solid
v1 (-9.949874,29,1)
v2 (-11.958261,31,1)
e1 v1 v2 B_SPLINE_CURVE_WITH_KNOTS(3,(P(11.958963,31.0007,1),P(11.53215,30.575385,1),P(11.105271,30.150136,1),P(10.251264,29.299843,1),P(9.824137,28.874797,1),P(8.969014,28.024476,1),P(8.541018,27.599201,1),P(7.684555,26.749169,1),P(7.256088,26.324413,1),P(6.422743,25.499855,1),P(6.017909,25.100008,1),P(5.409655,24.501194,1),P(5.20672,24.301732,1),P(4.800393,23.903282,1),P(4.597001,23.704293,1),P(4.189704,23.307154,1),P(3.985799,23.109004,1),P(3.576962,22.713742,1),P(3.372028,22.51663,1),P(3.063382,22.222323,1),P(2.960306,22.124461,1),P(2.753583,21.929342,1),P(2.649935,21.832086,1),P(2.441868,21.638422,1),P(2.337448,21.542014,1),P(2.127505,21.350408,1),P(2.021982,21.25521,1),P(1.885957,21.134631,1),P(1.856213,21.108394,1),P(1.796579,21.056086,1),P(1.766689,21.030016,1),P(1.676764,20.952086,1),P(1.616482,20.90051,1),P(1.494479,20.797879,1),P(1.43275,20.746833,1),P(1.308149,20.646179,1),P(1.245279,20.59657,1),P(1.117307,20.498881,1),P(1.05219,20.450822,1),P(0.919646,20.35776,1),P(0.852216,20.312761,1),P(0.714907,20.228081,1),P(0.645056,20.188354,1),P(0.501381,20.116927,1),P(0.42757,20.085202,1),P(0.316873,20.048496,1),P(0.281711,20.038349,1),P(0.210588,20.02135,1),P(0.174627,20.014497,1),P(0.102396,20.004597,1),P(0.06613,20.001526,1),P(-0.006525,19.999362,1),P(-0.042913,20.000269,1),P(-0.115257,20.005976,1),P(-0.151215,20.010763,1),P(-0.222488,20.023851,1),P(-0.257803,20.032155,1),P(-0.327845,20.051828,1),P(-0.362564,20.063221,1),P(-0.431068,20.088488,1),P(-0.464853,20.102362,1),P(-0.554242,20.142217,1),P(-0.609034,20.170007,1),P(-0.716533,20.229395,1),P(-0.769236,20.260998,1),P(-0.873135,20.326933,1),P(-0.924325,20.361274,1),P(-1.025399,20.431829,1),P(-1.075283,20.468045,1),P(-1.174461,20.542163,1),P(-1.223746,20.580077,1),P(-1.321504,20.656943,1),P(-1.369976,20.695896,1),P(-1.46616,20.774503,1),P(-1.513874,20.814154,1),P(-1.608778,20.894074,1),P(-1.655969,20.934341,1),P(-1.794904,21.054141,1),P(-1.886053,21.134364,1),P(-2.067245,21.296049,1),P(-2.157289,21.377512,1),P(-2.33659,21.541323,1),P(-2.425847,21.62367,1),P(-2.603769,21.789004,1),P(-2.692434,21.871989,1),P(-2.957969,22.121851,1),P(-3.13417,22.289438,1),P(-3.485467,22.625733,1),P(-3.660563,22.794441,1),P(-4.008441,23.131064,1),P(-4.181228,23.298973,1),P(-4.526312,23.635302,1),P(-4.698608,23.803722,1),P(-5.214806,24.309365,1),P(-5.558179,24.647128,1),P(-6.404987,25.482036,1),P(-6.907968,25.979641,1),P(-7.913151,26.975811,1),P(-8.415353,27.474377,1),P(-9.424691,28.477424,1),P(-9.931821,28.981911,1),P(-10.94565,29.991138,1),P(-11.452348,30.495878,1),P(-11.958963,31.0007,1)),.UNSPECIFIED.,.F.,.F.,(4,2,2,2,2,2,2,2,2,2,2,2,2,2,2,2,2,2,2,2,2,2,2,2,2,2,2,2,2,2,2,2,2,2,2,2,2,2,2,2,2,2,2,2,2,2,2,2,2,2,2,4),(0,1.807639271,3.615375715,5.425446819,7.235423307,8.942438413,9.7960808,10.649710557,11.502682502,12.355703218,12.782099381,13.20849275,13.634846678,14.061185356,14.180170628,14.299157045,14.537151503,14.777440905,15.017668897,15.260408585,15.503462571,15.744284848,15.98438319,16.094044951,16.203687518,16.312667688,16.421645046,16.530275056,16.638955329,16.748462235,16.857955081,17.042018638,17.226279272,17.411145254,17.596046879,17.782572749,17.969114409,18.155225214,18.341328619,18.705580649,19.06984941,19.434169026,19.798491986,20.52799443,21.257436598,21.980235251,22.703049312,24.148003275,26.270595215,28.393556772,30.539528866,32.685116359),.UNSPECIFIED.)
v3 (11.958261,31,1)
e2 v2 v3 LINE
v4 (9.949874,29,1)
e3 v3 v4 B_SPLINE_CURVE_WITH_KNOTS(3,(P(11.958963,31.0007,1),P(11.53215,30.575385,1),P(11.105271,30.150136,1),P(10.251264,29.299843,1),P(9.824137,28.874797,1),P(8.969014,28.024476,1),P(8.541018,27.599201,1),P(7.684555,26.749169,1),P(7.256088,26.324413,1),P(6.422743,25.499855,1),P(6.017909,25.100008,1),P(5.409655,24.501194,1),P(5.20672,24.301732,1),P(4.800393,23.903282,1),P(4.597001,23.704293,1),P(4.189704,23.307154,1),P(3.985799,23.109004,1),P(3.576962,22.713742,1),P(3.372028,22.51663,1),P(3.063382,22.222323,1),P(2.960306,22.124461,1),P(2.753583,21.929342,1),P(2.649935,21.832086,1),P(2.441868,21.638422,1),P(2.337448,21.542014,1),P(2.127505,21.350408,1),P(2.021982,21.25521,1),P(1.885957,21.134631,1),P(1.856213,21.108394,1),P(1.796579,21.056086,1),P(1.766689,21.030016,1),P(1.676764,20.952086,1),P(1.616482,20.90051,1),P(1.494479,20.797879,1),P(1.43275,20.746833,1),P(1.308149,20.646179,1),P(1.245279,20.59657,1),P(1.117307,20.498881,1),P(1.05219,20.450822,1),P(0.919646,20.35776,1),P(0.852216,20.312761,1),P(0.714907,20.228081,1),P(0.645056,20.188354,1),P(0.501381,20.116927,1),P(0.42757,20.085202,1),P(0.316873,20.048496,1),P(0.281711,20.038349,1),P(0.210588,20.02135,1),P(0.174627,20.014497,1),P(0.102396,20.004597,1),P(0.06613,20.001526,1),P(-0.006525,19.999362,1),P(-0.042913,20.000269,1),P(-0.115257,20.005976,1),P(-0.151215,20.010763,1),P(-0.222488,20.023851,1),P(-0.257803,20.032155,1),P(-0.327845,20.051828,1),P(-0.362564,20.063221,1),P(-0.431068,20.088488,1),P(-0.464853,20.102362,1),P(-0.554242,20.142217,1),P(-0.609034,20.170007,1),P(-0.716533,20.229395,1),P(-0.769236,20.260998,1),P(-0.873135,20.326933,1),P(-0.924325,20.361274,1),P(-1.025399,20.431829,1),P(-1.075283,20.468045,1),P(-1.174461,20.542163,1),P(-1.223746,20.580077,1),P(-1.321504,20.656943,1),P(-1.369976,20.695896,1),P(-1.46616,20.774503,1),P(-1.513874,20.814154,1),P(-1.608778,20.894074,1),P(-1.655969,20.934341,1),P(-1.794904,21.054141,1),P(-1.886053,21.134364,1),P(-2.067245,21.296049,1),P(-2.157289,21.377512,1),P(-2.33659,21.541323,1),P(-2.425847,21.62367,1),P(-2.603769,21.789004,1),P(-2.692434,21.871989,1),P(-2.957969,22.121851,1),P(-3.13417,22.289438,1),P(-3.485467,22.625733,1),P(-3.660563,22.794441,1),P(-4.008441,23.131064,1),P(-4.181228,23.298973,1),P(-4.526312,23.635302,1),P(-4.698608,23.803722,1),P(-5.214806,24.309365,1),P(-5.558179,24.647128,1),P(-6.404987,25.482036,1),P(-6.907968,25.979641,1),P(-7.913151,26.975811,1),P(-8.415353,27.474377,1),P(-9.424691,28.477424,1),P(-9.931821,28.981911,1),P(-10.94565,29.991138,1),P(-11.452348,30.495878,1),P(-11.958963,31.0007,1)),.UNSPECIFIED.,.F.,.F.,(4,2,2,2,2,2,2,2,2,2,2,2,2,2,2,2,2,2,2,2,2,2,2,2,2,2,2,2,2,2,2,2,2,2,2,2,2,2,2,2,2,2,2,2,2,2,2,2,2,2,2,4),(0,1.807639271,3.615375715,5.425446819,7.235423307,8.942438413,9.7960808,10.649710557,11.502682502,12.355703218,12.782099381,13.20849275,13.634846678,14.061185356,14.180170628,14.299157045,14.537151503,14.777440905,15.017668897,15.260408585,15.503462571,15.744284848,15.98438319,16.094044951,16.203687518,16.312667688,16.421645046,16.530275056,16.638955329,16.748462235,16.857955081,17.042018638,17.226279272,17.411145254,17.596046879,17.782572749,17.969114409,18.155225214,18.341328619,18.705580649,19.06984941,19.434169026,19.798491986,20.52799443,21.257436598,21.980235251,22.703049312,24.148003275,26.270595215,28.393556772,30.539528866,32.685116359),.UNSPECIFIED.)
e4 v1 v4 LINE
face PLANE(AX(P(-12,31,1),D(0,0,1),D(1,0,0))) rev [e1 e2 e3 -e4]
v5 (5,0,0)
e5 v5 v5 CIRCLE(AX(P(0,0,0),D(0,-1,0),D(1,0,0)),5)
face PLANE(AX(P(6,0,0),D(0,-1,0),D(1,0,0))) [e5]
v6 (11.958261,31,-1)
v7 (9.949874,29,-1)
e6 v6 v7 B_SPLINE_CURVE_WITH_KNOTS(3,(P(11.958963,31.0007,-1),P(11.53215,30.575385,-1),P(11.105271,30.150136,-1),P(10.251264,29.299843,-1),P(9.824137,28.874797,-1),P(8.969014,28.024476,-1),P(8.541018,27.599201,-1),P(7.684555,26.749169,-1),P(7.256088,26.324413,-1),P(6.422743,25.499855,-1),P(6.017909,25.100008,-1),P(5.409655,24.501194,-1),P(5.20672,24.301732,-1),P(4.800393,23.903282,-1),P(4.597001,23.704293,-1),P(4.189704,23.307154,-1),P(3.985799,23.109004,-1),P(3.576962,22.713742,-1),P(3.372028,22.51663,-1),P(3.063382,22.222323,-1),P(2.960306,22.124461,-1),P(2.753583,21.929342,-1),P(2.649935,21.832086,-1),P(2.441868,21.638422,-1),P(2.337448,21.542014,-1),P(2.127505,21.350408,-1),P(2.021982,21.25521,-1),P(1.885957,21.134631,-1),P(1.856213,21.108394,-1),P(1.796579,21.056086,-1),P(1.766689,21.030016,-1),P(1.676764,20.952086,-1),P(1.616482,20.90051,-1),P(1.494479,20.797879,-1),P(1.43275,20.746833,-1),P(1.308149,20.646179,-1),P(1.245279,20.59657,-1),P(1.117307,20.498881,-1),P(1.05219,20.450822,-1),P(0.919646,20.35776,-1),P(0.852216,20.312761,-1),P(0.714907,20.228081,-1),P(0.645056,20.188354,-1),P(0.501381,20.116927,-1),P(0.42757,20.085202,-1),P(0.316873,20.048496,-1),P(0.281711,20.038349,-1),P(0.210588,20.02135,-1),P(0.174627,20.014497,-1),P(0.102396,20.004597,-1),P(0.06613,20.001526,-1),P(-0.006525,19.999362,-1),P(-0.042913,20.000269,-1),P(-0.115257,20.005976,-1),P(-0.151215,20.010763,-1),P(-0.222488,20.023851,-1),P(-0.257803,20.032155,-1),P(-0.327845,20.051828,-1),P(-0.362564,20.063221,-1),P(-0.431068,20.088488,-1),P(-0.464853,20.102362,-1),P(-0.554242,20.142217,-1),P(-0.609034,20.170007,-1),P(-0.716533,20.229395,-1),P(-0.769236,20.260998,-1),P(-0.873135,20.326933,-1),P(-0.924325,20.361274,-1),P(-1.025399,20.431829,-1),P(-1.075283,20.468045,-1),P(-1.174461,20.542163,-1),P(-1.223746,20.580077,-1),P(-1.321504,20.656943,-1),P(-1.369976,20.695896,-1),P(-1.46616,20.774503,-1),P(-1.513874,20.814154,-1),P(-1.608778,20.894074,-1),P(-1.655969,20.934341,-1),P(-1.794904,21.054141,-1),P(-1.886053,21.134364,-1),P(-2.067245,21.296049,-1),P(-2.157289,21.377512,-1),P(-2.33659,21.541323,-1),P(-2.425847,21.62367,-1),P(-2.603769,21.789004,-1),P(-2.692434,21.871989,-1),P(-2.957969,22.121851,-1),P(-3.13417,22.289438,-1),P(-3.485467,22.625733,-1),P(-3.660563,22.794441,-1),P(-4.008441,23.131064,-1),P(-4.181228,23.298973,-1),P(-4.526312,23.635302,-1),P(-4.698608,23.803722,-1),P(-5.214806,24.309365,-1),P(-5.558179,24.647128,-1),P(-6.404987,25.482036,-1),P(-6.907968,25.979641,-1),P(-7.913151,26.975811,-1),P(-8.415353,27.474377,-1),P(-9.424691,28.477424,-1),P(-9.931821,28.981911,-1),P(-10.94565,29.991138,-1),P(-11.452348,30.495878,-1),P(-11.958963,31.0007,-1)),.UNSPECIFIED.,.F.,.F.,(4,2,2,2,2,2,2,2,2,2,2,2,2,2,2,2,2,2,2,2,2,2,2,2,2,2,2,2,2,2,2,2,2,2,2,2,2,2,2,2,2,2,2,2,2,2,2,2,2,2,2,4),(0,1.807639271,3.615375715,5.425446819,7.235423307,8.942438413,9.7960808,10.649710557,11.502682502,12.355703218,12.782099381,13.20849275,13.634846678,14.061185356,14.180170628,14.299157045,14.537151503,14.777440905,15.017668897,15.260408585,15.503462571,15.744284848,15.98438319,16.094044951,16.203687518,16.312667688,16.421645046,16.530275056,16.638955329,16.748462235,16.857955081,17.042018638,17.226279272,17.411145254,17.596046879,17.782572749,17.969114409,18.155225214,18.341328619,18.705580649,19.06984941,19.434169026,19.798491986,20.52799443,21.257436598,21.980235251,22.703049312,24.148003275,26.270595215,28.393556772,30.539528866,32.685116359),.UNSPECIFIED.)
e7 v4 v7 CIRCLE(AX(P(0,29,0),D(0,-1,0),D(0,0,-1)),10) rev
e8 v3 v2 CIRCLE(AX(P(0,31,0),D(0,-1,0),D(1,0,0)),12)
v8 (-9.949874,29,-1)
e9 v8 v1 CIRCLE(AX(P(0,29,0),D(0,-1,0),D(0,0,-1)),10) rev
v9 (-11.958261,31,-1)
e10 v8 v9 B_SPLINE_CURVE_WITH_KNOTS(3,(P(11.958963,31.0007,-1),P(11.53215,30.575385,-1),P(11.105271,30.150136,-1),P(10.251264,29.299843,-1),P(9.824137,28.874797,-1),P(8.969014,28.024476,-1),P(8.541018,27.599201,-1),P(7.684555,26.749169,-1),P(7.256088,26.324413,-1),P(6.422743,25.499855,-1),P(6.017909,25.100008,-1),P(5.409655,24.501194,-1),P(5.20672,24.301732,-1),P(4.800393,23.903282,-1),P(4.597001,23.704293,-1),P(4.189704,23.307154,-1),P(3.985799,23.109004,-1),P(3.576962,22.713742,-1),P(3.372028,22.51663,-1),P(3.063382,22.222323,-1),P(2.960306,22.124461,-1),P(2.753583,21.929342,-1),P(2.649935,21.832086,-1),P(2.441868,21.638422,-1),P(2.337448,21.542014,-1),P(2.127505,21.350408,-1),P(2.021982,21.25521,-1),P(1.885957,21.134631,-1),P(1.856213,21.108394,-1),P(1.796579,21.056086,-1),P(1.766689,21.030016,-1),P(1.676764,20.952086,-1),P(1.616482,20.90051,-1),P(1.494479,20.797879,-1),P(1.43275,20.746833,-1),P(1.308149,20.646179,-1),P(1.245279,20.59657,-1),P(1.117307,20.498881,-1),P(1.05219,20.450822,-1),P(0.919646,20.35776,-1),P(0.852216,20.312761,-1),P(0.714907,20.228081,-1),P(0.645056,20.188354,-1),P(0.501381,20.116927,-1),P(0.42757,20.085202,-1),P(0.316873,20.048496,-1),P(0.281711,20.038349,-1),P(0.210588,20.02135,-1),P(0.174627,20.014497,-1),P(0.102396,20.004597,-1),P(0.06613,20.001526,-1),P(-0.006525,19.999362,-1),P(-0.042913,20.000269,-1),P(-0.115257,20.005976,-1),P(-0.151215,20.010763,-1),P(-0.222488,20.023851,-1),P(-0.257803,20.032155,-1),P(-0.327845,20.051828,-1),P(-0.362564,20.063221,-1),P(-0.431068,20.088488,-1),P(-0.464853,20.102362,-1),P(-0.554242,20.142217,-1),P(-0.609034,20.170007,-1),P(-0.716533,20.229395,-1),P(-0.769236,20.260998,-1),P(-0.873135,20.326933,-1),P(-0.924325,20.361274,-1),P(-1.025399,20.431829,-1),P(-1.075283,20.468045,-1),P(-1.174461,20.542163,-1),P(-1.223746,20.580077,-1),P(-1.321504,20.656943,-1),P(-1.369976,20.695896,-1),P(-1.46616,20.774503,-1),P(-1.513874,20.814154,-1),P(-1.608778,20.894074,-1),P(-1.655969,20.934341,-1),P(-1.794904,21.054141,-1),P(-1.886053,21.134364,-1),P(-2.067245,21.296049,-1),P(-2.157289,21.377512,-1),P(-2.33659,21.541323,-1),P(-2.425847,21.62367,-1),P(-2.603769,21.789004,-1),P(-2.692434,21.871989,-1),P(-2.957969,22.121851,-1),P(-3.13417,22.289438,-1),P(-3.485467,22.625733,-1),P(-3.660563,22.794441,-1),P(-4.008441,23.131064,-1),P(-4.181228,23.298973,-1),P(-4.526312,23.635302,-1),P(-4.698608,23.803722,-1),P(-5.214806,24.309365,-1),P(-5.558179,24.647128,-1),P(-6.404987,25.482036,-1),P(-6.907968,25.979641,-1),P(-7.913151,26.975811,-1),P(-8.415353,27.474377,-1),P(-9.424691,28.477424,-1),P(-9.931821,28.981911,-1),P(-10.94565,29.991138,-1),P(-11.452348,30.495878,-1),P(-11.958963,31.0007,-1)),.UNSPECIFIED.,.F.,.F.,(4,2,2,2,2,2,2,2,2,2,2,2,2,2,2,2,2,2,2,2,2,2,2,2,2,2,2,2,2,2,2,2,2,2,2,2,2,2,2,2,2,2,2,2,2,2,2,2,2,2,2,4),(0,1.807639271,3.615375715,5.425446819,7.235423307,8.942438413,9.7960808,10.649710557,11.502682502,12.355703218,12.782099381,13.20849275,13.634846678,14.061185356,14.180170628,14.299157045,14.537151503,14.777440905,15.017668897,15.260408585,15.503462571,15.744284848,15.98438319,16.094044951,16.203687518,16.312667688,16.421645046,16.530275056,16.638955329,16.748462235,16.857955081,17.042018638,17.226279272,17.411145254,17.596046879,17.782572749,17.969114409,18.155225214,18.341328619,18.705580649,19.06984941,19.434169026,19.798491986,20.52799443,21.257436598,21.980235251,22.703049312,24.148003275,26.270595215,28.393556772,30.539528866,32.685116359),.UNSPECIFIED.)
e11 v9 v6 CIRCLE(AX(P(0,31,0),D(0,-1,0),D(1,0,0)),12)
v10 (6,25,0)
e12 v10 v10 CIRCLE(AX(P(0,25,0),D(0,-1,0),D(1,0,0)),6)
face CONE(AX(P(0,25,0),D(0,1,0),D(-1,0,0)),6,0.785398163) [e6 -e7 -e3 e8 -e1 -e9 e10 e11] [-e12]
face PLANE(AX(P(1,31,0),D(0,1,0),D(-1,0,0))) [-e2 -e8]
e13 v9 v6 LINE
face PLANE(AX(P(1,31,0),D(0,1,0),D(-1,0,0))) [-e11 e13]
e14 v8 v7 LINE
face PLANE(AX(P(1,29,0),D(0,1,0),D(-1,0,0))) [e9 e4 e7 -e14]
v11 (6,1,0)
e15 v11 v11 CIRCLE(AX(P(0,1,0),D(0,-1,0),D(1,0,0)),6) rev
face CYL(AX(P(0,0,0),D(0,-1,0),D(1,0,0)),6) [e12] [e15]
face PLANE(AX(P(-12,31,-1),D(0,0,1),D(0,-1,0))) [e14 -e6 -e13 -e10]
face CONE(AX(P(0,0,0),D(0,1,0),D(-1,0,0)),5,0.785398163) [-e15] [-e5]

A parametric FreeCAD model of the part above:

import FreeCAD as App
import Part
import Sketcher
from FreeCAD import Vector
Q = App.Units.Quantity


def edges_at(feature, points):
    """Names of the edges that pass closest to the given points."""
    edges = feature.Shape.Edges
    near = lambda p: min(range(len(edges)), key=lambda i: edges[i].distToShape(Part.Vertex(*p))[0])
    return sorted({f"Edge{near(p) + 1}" for p in points})

doc = App.newDocument("Part")
params = doc.addObject("Spreadsheet::Sheet", "Params")
for row, (alias, value) in enumerate([
    ("sketch1_width", "1 mm"),
    ("sketch1_width2", "6 mm"),
    ("sketch1_width3", "11 mm"),
    ("sketch1_height", "2 mm"),
    ("sketch1_height2", "29 mm"),
    ("revolution_angle", "360 deg"),
    ("sketch2_width", "2 mm"),
    ("chamfer_size", "1 mm"),
], start=1):
    params.set(f"A{row}", alias)
    params.set(f"B{row}", "=" + value)
    params.setAlias(f"B{row}", alias)

body = doc.addObject("PartDesign::Body", "Body")

sketch1 = body.newObject("Sketcher::SketchObject", "Sketch")
sketch1.AttachmentSupport = (doc.getObject("XY_Plane"), [""])
sketch1.MapMode = "FlatFace"
sketch1.addGeometry([
    Part.LineSegment(Vector(1, 31, 0), Vector(1, 29, 0)),
    Part.LineSegment(Vector(1, 29, 0), Vector(0, 29, 0)),
    Part.LineSegment(Vector(0, 29, 0), Vector(0, 0, 0)),
    Part.LineSegment(Vector(0, 0, 0), Vector(6, 0, 0)),
    Part.LineSegment(Vector(6, 0, 0), Vector(6, 25, 0)),
    Part.LineSegment(Vector(6, 25, 0), Vector(12, 31, 0)),
    Part.LineSegment(Vector(12, 31, 0), Vector(1, 31, 0)),
], False)
sketch1.addConstraint([
    Sketcher.Constraint("Coincident", 0, 2, 1, 1),
    Sketcher.Constraint("Coincident", 1, 2, 2, 1),
    Sketcher.Constraint("Coincident", 2, 2, 3, 1),
    Sketcher.Constraint("Coincident", 3, 2, 4, 1),
    Sketcher.Constraint("Coincident", 4, 2, 5, 1),
    Sketcher.Constraint("Coincident", 5, 2, 6, 1),
    Sketcher.Constraint("Coincident", 6, 2, 0, 1),
    Sketcher.Constraint("Vertical", 0),
    Sketcher.Constraint("Horizontal", 1),
    Sketcher.Constraint("Vertical", 2),
    Sketcher.Constraint("Horizontal", 3),
    Sketcher.Constraint("Vertical", 4),
    Sketcher.Constraint("Horizontal", 6),
    Sketcher.Constraint("Coincident", 2, 2, -1, 1),
    Sketcher.Constraint("DistanceX", 1, 2, 1, 1, Q("1 mm")),
    Sketcher.Constraint("DistanceX", 3, 1, 3, 2, Q("6 mm")),
    Sketcher.Constraint("DistanceX", 6, 2, 6, 1, Q("11 mm")),
    Sketcher.Constraint("DistanceY", 0, 2, 0, 1, Q("2 mm")),
    Sketcher.Constraint("DistanceY", 2, 2, 2, 1, Q("29 mm")),
    Sketcher.Constraint("DistanceY", 4, 1, 4, 2, Q("25 mm")),
])
sketch1.setExpression("Constraints[14]", "Params.sketch1_width")
sketch1.setExpression("Constraints[15]", "Params.sketch1_width2")
sketch1.setExpression("Constraints[16]", "Params.sketch1_width3")
sketch1.setExpression("Constraints[17]", "Params.sketch1_height")
sketch1.setExpression("Constraints[18]", "Params.sketch1_height2")
revolution = body.newObject("PartDesign::Revolution", "Revolution")
revolution.Profile = sketch1
revolution.ReferenceAxis = (sketch1, ["V_Axis"])
revolution.setExpression("Angle", "Params.revolution_angle")

sketch2 = body.newObject("Sketcher::SketchObject", "Sketch001")
sketch2.AttachmentSupport = (doc.getObject("YZ_Plane"), [""])
sketch2.MapMode = "FlatFace"
sketch2.addGeometry([
    Part.LineSegment(Vector(31, 1, 0), Vector(29, 1, 0)),
    Part.LineSegment(Vector(29, 1, 0), Vector(29, -1, 0)),
    Part.LineSegment(Vector(29, -1, 0), Vector(31, -1, 0)),
    Part.LineSegment(Vector(31, -1, 0), Vector(31, 1, 0)),
], False)
sketch2.addConstraint([
    Sketcher.Constraint("Coincident", 0, 2, 1, 1),
    Sketcher.Constraint("Coincident", 1, 2, 2, 1),
    Sketcher.Constraint("Coincident", 2, 2, 3, 1),
    Sketcher.Constraint("Coincident", 3, 2, 0, 1),
    Sketcher.Constraint("Horizontal", 0),
    Sketcher.Constraint("Vertical", 1),
    Sketcher.Constraint("Horizontal", 2),
    Sketcher.Constraint("Vertical", 3),
    Sketcher.Constraint("Equal", 2, 1),
    Sketcher.Constraint("DistanceX", 0, 2, 0, 1, Q("2 mm")),
    Sketcher.Constraint("DistanceX", -1, 1, 0, 2, Q("29 mm")),
    Sketcher.Constraint("DistanceY", -1, 1, 0, 2, Q("1 mm")),
])
sketch2.setExpression("Constraints[9]", "Params.sketch2_width")
pocket1 = body.newObject("PartDesign::Pocket", "Pocket")
pocket1.Profile = sketch2
pocket1.Type = "ThroughAll"
pocket1.Midplane = True
doc.recompute()

chamfer = body.newObject("PartDesign::Chamfer", "Chamfer")
chamfer.Base = (pocket1, edges_at(pocket1, [(-6, 0, 0)]))
chamfer.setExpression("Size", "Params.chamfer_size")

doc.recompute()
